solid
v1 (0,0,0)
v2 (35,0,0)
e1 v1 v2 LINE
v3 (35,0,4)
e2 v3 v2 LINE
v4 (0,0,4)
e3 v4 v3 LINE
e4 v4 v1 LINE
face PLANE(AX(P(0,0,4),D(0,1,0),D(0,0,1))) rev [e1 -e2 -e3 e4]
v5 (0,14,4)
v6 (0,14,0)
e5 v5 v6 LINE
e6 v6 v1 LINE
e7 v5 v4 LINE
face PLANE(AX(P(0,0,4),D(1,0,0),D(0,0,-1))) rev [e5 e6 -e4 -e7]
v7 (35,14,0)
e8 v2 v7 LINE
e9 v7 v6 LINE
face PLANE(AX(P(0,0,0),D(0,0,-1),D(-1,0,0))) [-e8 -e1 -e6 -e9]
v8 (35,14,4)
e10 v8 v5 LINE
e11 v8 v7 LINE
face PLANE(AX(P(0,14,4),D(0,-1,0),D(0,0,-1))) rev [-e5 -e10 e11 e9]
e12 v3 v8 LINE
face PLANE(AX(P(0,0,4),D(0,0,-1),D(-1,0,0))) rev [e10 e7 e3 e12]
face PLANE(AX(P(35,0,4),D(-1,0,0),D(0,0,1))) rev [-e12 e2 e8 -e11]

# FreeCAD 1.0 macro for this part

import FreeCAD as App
import Part
import Sketcher
Q = App.Units.Quantity


def add_polygon(sketch, points):
    """Adds a closed chain of lines whose ends are joined by coincident constraints."""
    first, n = sketch.GeometryCount, len(points)
    for a, b in zip(points, points[1:] + points[:1]):
        sketch.addGeometry(Part.LineSegment(App.Vector(*a, 0), App.Vector(*b, 0)), False)
    for i in range(n):
        sketch.addConstraint(Sketcher.Constraint("Coincident", first + i, 2, first + (i + 1) % n, 1))

doc = App.newDocument("Part")
body = doc.addObject("PartDesign::Body", "Body")

# Sketch on XY plane
sketch1 = body.newObject("Sketcher::SketchObject", "Sketch")
sketch1.AttachmentSupport = (doc.getObject("XY_Plane"), [""])
sketch1.MapMode = "FlatFace"
add_polygon(sketch1, [(0, 14), (0, 0), (35, 0), (35, 14)])  # lines 0-3
sketch1.addConstraint(Sketcher.Constraint("Vertical", 0))
sketch1.addConstraint(Sketcher.Constraint("Horizontal", 1))
sketch1.addConstraint(Sketcher.Constraint("Vertical", 2))
sketch1.addConstraint(Sketcher.Constraint("Horizontal", 3))
sketch1.addConstraint(Sketcher.Constraint("Coincident", 0, 2, -1, 1))
sketch1.addConstraint(Sketcher.Constraint("DistanceX", 1, 1, 1, 2, Q("35 mm")))
sketch1.addConstraint(Sketcher.Constraint("DistanceY", 0, 2, 0, 1, Q("14 mm")))
pad1 = body.newObject("PartDesign::Pad", "Pad")
pad1.Profile = sketch1
pad1.Length = 4

doc.recompute()
